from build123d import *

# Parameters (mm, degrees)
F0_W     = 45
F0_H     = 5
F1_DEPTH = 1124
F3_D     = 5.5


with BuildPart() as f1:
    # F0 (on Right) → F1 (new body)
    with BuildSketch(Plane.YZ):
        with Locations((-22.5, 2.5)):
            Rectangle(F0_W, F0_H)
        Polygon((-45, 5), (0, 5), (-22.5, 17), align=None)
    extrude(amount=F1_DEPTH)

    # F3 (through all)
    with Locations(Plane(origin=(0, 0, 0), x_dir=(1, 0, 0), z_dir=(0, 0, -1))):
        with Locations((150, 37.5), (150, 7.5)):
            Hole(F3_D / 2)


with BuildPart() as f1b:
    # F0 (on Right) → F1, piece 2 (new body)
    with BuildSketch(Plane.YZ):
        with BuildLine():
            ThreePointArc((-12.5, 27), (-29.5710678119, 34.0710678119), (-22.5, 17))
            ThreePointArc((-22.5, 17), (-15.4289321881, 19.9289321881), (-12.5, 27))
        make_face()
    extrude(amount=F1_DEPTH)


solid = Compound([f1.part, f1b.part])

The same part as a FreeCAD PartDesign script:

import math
import FreeCAD as App
import Part
import Sketcher

V = App.Vector

doc = App.newDocument("Part")
params = doc.addObject("Spreadsheet::Sheet", "Params")
for row, (alias, value) in enumerate([
    ("sketch1_width", "45 mm"),
    ("sketch1_height", "5 mm"),
    ("pad1_length", "1124 mm"),
    ("sketch2_diameter", "5.5 mm"),
    ("hole_diameter", "5.5 mm"),
    ("sketch3_radius", "10 mm"),
    ("pad2_length", "1124 mm"),
], start=1):
    params.set(f"A{row}", alias)
    params.set(f"B{row}", "=" + value)
    params.setAlias(f"B{row}", alias)

body = doc.addObject("PartDesign::Body", "Body")

# Sketch on YZ plane
sketch1 = body.newObject("Sketcher::SketchObject", "Sketch")
sketch1.AttachmentSupport = (doc.getObject("YZ_Plane"), [""])
sketch1.MapMode = "FlatFace"
sketch1.addGeometry([
    Part.LineSegment(V(-45, 5, 0), V(-45, 0, 0)),  # 0
    Part.LineSegment(V(-45, 0, 0), V(0, 0, 0)),  # 1
    Part.LineSegment(V(0, 0, 0), V(0, 5, 0)),  # 2
    Part.LineSegment(V(0, 5, 0), V(-22.5, 17, 0)),  # 3
    Part.LineSegment(V(-22.5, 17, 0), V(-45, 5, 0)),  # 4
], False)
sketch1.addConstraint([
    Sketcher.Constraint("Coincident", 0, 2, 1, 1),
    Sketcher.Constraint("Coincident", 1, 2, 2, 1),
    Sketcher.Constraint("Coincident", 2, 2, 3, 1),
    Sketcher.Constraint("Coincident", 3, 2, 4, 1),
    Sketcher.Constraint("Coincident", 4, 2, 0, 1),
    Sketcher.Constraint("Vertical", 0),
    Sketcher.Constraint("Horizontal", 1),
    Sketcher.Constraint("Vertical", 2),
    Sketcher.Constraint("Coincident", 1, 2, -1, 1),
    Sketcher.Constraint("Horizontal", 2, 2, 4, 2),
    Sketcher.Constraint("Equal", 3, 4),
    Sketcher.Constraint("DistanceX", 1, 1, 1, 2, 45.0),
    Sketcher.Constraint("DistanceY", 0, 2, 0, 1, 5.0),
    Sketcher.Constraint("DistanceY", -1, 1, 3, 2, 17.0),
])
sketch1.setExpression("Constraints[11]", "Params.sketch1_width")
sketch1.setExpression("Constraints[12]", "Params.sketch1_height")
pad1 = body.newObject("PartDesign::Pad", "Pad")
pad1.Profile = sketch1
pad1.setExpression("Length", "Params.pad1_length")

# Sketch on XY plane
sketch2 = body.newObject("Sketcher::SketchObject", "Sketch001")
sketch2.AttachmentSupport = (doc.getObject("XY_Plane"), [""])
sketch2.MapMode = "FlatFace"
sketch2.addGeometry([
    Part.Circle(V(150, -37.5, 0), V(0, 0, 1), 2.75),
    Part.Circle(V(150, -7.5, 0), V(0, 0, 1), 2.75),
], False)
sketch2.addConstraint([
    Sketcher.Constraint("Equal", 0, 1),
    Sketcher.Constraint("Vertical", 0, 3, 1, 3),
    Sketcher.Constraint("Diameter", 0, 5.5),
    Sketcher.Constraint("DistanceX", -1, 1, 0, 3, 150.0),
    Sketcher.Constraint("DistanceY", 0, 3, 1, 3, 30.0),
    Sketcher.Constraint("DistanceY", 0, 3, -1, 1, 37.5),
])
sketch2.setExpression("Constraints[2]", "Params.sketch2_diameter")
doc.recompute()
hole = body.newObject("PartDesign::Hole", "Hole")
hole.Profile = sketch2
hole.ThreadType = "None"
hole.setExpression("Diameter", "Params.hole_diameter")
hole.DepthType = "ThroughAll"
hole.Reversed = True
body2 = doc.addObject("PartDesign::Body", "Body001")

# Sketch on YZ plane
sketch3 = body2.newObject("Sketcher::SketchObject", "Sketch002")
sketch3.AttachmentSupport = (doc.getObject("YZ_Plane001"), [""])
sketch3.MapMode = "FlatFace"
sketch3.addGeometry([
    Part.ArcOfCircle(Part.Circle(V(-22.5, 27, 0), V(0, 0, 1), 10), math.radians(0), math.radians(270)),
    Part.ArcOfCircle(Part.Circle(V(-22.5, 27, 0), V(0, 0, 1), 10), math.radians(-90), math.radians(0)),
], False)
sketch3.addConstraint([
    Sketcher.Constraint("Tangent", 0, 1, 1, 2),
    Sketcher.Constraint("Coincident", 1, 1, 0, 2),
    Sketcher.Constraint("Horizontal", 1, 3, 0, 1),
    Sketcher.Constraint("Vertical", 0, 3, 1, 1),
    Sketcher.Constraint("Radius", 0, 10.0),
    Sketcher.Constraint("DistanceY", -1, 1, 0, 3, 27.0),
    Sketcher.Constraint("DistanceX", 0, 3, -1, 1, 22.5),
])
sketch3.setExpression("Constraints[4]", "Params.sketch3_radius")
pad2 = body2.newObject("PartDesign::Pad", "Pad001")
pad2.Profile = sketch3
pad2.setExpression("Length", "Params.pad2_length")

doc.recompute()
